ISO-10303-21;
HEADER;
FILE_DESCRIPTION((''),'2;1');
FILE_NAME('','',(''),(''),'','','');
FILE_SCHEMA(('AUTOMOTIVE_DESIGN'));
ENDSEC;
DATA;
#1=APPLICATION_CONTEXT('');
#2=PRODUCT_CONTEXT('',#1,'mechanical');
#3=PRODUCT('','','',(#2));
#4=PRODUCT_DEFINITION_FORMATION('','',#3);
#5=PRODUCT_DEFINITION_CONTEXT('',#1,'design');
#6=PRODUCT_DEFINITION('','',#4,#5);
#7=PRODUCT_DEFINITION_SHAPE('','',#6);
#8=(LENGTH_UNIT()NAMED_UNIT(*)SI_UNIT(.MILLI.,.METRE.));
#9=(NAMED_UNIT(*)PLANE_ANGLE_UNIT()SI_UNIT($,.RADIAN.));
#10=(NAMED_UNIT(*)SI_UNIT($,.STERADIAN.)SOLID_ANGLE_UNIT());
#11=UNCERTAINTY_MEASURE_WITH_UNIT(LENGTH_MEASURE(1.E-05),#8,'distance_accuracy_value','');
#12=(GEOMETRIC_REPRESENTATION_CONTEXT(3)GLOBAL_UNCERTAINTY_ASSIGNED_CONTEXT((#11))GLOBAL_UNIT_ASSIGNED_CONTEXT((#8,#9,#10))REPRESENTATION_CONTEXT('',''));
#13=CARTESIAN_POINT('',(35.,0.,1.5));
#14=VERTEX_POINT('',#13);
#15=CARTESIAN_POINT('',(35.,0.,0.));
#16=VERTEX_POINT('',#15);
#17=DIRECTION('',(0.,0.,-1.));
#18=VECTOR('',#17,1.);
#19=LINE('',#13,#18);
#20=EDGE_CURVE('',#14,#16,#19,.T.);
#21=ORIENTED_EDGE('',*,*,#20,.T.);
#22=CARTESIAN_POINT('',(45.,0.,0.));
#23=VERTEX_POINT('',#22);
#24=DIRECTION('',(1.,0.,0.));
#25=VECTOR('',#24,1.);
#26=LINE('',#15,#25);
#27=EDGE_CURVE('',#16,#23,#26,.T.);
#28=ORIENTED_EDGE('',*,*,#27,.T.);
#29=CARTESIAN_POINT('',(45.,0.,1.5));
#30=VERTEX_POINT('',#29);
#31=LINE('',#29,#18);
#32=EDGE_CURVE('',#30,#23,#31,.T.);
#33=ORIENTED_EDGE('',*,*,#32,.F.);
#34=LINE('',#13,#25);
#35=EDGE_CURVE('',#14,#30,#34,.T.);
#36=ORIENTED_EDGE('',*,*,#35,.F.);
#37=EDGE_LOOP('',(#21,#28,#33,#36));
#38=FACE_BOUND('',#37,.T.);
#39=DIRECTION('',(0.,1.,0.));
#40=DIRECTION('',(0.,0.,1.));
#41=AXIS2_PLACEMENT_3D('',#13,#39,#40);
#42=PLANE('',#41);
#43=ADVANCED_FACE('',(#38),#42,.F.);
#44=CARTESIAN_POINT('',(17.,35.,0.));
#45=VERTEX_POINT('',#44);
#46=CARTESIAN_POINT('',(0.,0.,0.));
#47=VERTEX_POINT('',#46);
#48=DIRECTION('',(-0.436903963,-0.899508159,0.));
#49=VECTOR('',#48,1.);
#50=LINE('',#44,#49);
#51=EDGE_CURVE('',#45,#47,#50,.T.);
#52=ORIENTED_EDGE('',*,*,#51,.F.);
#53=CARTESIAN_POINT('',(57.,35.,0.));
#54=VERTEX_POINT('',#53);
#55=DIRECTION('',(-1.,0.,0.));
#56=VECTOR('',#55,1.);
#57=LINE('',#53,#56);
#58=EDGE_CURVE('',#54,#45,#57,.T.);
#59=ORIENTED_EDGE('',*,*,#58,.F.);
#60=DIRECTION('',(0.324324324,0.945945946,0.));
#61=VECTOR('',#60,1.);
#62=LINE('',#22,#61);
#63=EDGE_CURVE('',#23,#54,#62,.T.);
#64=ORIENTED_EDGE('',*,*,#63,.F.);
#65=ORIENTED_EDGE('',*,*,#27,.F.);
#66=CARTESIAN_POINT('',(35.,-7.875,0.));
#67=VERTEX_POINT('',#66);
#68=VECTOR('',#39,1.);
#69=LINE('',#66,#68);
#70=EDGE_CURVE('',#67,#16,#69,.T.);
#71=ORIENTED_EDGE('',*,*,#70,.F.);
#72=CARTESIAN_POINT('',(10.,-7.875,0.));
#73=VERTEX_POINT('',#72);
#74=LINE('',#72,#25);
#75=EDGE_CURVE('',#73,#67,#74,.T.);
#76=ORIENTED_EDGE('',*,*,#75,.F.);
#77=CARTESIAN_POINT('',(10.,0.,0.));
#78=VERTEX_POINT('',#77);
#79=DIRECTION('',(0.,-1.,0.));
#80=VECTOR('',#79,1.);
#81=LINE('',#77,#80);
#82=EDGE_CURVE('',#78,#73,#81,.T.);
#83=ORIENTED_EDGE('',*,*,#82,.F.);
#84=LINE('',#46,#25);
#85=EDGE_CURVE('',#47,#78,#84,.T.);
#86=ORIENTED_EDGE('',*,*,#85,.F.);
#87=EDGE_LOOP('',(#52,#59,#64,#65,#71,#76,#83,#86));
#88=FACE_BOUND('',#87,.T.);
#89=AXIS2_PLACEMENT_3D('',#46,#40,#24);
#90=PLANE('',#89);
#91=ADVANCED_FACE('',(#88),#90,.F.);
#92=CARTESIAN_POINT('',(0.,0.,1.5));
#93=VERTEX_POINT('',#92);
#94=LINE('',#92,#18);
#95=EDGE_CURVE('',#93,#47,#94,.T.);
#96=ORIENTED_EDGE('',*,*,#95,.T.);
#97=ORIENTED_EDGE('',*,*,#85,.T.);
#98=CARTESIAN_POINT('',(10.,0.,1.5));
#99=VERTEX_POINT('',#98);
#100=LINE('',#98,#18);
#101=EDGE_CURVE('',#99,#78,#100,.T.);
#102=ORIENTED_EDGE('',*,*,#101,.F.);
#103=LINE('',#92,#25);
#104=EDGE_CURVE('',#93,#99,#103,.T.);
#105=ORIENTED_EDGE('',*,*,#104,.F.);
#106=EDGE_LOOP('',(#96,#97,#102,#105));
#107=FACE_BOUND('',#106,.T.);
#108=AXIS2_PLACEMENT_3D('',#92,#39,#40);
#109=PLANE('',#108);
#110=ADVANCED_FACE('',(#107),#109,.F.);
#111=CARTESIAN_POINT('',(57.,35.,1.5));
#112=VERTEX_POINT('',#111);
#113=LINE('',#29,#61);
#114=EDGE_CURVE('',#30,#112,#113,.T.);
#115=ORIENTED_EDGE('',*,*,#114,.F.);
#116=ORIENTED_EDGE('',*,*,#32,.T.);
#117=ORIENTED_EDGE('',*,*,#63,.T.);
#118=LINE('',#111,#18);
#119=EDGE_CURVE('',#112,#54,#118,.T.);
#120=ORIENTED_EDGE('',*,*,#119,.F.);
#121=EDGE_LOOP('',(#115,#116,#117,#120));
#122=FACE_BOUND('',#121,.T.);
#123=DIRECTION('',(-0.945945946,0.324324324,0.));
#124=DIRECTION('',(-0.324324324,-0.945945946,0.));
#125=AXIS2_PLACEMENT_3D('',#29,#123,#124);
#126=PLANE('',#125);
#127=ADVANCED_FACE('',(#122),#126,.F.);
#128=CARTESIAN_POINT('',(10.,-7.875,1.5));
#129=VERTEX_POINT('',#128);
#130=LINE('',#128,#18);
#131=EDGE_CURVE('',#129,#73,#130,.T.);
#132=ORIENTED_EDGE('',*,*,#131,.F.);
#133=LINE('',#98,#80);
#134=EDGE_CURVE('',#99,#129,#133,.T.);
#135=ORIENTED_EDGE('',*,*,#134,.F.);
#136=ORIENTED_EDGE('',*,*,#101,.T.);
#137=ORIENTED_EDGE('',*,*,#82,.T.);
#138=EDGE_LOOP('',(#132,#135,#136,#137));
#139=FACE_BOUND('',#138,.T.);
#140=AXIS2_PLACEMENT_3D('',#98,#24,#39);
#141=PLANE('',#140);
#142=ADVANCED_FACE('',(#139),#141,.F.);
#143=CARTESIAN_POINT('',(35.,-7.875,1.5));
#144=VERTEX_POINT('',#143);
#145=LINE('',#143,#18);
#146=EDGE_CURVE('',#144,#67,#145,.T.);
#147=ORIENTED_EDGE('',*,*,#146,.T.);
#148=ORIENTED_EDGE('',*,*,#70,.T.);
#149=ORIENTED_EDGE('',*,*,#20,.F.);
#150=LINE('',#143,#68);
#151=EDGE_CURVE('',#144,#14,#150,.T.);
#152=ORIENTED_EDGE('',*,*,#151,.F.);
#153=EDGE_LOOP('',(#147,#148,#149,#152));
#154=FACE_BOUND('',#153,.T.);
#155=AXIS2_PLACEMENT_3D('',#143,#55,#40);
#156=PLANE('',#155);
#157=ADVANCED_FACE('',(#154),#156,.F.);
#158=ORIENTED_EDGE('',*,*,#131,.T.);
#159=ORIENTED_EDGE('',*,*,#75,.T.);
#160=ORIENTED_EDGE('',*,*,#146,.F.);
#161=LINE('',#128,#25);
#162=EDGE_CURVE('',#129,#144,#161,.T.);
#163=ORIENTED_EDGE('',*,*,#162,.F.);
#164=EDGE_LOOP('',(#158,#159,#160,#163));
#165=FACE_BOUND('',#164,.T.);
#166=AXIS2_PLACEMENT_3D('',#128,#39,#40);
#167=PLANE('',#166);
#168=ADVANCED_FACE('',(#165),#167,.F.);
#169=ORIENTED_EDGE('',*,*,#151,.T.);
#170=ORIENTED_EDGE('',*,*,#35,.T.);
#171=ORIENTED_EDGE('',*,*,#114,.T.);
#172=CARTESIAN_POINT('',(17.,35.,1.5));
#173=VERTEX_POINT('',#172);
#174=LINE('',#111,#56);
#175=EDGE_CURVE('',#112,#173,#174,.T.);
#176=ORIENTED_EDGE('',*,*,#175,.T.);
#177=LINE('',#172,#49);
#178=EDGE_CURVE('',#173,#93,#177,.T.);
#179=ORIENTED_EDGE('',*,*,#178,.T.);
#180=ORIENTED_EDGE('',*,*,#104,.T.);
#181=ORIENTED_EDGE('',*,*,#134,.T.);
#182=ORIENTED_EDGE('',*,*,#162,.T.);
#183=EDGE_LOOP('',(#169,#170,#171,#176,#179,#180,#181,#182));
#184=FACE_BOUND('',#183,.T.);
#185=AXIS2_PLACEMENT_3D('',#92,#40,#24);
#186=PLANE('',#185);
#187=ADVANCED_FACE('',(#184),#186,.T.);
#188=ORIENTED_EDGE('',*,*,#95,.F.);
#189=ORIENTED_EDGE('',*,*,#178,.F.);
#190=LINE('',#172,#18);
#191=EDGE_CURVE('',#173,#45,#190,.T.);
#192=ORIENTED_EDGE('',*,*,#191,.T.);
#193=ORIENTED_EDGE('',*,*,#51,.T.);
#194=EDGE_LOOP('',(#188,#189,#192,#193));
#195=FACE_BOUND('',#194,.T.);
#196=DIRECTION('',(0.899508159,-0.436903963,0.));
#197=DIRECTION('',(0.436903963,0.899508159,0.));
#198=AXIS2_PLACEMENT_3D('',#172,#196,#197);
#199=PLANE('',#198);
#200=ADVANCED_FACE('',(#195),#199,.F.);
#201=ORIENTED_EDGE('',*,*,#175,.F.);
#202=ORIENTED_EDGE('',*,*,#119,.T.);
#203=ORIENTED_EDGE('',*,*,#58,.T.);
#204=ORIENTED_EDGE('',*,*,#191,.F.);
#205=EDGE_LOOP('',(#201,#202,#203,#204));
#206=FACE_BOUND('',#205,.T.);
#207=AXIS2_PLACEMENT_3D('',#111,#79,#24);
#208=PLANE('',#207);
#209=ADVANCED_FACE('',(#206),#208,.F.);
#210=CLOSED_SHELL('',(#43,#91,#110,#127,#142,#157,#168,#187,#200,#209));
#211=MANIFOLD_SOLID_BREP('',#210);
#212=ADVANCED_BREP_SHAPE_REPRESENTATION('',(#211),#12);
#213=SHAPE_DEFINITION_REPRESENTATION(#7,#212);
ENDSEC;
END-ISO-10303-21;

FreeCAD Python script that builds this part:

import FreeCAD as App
import Part
import Sketcher
from FreeCAD import Vector


def add_polygon(sketch, points):
    """Adds a closed chain of lines whose ends are joined by coincident constraints."""
    first, n = sketch.GeometryCount, len(points)
    for a, b in zip(points, points[1:] + points[:1]):
        sketch.addGeometry(Part.LineSegment(App.Vector(*a, 0), App.Vector(*b, 0)), False)
    for i in range(n):
        sketch.addConstraint(Sketcher.Constraint("Coincident", first + i, 2, first + (i + 1) % n, 1))

doc = App.newDocument("Part")
body = doc.addObject("PartDesign::Body", "Body")

sketch1 = body.newObject("Sketcher::SketchObject", "Sketch")
sketch1.AttachmentSupport = (doc.getObject("XY_Plane"), [""])
sketch1.MapMode = "FlatFace"
add_polygon(sketch1, [(0, 0), (10, 0), (10, -7.875), (35, -7.875), (35, 0), (45, 0), (57, 35), (17, 35)])
sketch1.addConstraint([
    Sketcher.Constraint("Horizontal", 0),
    Sketcher.Constraint("Vertical", 1),
    Sketcher.Constraint("Horizontal", 2),
    Sketcher.Constraint("Vertical", 3),
    Sketcher.Constraint("Horizontal", 4),
    Sketcher.Constraint("Horizontal", 6),
    Sketcher.Constraint("Coincident", 7, 2, -1, 1),
    Sketcher.Constraint("PointOnObject", 3, 2, -1),
    Sketcher.Constraint("Equal", 0, 4),
    Sketcher.Constraint("DistanceX", 0, 1, 0, 2, 10.0),
    Sketcher.Constraint("DistanceX", 2, 1, 2, 2, 25.0),
    Sketcher.Constraint("DistanceX", 6, 2, 6, 1, 40.0),
    Sketcher.Constraint("Distance", 5, 37.0),
    Sketcher.Constraint("DistanceX", -1, 1, 5, 2, 57.0),
    Sketcher.Constraint("DistanceY", 1, 2, 1, 1, 7.875),
])
pad1 = body.newObject("PartDesign::Pad", "Pad")
pad1.Profile = sketch1
pad1.Length = 1.5

doc.recompute()
